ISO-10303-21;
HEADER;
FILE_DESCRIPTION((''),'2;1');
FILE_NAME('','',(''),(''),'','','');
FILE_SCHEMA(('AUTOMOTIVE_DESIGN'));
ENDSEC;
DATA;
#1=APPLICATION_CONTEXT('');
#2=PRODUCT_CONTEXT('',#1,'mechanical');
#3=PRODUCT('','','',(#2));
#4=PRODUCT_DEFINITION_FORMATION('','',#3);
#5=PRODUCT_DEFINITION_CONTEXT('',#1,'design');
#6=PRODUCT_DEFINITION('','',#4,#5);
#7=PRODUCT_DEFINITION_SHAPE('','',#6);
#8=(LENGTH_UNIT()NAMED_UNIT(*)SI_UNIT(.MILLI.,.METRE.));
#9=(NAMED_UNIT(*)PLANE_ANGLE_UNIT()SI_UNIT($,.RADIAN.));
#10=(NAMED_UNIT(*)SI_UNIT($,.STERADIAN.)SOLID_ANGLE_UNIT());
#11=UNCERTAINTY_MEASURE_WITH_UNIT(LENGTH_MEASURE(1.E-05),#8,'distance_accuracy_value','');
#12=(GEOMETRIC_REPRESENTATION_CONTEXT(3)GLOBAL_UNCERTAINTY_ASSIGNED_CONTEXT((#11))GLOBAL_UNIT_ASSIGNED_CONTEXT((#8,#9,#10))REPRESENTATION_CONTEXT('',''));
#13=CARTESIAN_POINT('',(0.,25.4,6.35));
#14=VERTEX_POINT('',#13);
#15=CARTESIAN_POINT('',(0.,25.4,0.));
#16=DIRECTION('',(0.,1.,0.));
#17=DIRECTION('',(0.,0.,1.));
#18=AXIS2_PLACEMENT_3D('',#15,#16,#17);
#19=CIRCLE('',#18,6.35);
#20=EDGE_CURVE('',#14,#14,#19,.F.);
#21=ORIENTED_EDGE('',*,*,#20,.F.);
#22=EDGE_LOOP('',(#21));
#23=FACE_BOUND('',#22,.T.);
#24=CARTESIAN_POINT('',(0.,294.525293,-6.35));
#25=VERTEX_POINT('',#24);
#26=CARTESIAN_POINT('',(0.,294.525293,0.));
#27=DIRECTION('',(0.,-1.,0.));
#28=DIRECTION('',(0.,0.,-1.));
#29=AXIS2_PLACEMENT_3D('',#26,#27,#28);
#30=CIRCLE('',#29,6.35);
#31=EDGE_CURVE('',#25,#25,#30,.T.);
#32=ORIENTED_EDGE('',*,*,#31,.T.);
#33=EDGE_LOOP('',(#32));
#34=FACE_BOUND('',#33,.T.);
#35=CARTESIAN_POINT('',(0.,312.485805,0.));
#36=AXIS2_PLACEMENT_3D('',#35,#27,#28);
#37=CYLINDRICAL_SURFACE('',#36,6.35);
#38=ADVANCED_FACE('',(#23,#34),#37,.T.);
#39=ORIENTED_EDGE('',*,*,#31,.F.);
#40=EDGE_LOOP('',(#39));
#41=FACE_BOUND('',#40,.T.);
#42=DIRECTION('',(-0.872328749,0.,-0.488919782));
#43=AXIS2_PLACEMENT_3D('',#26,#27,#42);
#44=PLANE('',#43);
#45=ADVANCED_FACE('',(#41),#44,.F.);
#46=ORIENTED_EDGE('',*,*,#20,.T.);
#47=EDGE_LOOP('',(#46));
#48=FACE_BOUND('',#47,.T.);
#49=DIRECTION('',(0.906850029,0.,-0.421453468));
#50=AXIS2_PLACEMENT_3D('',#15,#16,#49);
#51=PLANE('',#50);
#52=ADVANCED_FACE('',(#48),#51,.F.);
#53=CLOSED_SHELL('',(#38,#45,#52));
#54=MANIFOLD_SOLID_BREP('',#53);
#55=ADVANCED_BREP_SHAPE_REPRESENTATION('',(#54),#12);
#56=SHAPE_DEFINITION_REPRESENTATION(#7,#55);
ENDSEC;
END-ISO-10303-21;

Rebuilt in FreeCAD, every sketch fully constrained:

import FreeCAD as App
import Part
import Sketcher

V = App.Vector
Q = App.Units.Quantity

doc = App.newDocument("Part")
params = doc.addObject("Spreadsheet::Sheet", "Params")
for row, (alias, value) in enumerate([
    ("sketch1_diameter", "0.5 in"),
    ("pad1_length", "134.562647 mm"),
    ("pad1_length2", "134.562647 mm"),
], start=1):
    params.set(f"A{row}", alias)
    params.set(f"B{row}", "=" + value)
    params.setAlias(f"B{row}", alias)

body = doc.addObject("PartDesign::Body", "Body")

# Sketch on XZ plane
sketch1 = body.newObject("Sketcher::SketchObject", "Sketch")
sketch1.AttachmentSupport = (doc.getObject("XZ_Plane"), [""])
sketch1.MapMode = "FlatFace"
sketch1.AttachmentOffset = App.Placement(V(0, 0, -159.962647), App.Rotation())
sketch1.addGeometry(Part.Circle(V(0, 0, 0), V(0, 0, 1), 6), False)
sketch1.addConstraint(Sketcher.Constraint("Coincident", 0, 3, -1, 1))
sketch1.addConstraint(Sketcher.Constraint("Diameter", 0, Q("0.5 in")))
sketch1.setExpression("Constraints[1]", "Params.sketch1_diameter")
pad1 = body.newObject("PartDesign::Pad", "Pad")
pad1.Profile = sketch1
pad1.Type = "TwoLengths"
pad1.setExpression("Length", "Params.pad1_length")
pad1.setExpression("Length2", "Params.pad1_length2")
pad1.Reversed = True

doc.recompute()
